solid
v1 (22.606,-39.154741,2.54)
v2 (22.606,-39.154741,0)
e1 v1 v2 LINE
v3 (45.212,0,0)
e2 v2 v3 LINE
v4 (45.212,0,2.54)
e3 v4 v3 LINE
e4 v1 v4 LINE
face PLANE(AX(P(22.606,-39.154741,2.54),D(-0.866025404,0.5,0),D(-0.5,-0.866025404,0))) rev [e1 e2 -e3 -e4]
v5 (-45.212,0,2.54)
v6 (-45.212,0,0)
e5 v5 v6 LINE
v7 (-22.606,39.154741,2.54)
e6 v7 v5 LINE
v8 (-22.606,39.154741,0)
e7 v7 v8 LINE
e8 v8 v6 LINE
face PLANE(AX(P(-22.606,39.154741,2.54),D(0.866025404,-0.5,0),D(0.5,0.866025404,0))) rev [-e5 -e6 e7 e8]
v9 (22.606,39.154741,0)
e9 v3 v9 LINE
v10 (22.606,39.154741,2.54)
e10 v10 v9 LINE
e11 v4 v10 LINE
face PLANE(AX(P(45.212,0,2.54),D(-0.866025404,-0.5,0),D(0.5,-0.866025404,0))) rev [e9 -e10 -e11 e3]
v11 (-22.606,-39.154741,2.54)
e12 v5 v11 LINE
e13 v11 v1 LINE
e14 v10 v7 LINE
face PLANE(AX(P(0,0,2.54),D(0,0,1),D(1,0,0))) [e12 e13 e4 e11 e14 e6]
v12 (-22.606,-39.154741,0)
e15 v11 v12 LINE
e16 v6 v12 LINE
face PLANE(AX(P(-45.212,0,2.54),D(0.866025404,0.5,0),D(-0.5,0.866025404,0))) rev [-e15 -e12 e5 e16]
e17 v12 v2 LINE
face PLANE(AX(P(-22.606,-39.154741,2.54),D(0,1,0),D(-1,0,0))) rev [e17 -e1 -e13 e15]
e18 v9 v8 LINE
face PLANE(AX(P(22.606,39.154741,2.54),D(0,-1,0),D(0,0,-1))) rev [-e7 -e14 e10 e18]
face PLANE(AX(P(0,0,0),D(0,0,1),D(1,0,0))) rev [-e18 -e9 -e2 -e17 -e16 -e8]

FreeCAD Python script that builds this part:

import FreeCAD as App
import Part
import Sketcher
from FreeCAD import Vector
Q = App.Units.Quantity


def add_polygon(sketch, points):
    """Adds a closed chain of lines whose ends are joined by coincident constraints."""
    first, n = sketch.GeometryCount, len(points)
    for a, b in zip(points, points[1:] + points[:1]):
        sketch.addGeometry(Part.LineSegment(App.Vector(*a, 0), App.Vector(*b, 0)), False)
    for i in range(n):
        sketch.addConstraint(Sketcher.Constraint("Coincident", first + i, 2, first + (i + 1) % n, 1))

doc = App.newDocument("Part")
params = doc.addObject("Spreadsheet::Sheet", "Params")
for row, (alias, value) in enumerate([
    ("sketch1_width", "1.78 in"),
    ("sketch1_length", "1.78 in"),
    ("pad1_length", "0.1 in"),
], start=1):
    params.set(f"A{row}", alias)
    params.set(f"B{row}", "=" + value)
    params.setAlias(f"B{row}", alias)

body = doc.addObject("PartDesign::Body", "Body")

# Sketch on XY plane
sketch1 = body.newObject("Sketcher::SketchObject", "Sketch")
sketch1.AttachmentSupport = (doc.getObject("XY_Plane"), [""])
sketch1.MapMode = "FlatFace"
add_polygon(sketch1, [(45.212, 0), (22.606, 39.154741), (-22.606, 39.154741), (-45.212, 0), (-22.606, -39.154741), (22.606, -39.154741)])  # lines 0-5
sketch1.addConstraint([
    Sketcher.Constraint("Horizontal", 1),
    Sketcher.Constraint("Horizontal", 4),
    Sketcher.Constraint("Symmetric", 0, 2, 3, 2, -1, 1),
    Sketcher.Constraint("Symmetric", 2, 2, 5, 2, -1, 1),
    Sketcher.Constraint("PointOnObject", 2, 2, -1),
    Sketcher.Constraint("Parallel", 2, 5),
    Sketcher.Constraint("Vertical", 1, 2, 3, 2),
    Sketcher.Constraint("Angle", 0, Q("120 deg")),
    Sketcher.Constraint("DistanceX", 1, 2, 1, 1, Q("1.78 in")),
    Sketcher.Constraint("Distance", 0, Q("1.78 in")),
])
sketch1.setExpression("Constraints[14]", "Params.sketch1_width")
sketch1.setExpression("Constraints[15]", "Params.sketch1_length")
pad1 = body.newObject("PartDesign::Pad", "Pad")
pad1.Profile = sketch1
pad1.setExpression("Length", "Params.pad1_length")

doc.recompute()
